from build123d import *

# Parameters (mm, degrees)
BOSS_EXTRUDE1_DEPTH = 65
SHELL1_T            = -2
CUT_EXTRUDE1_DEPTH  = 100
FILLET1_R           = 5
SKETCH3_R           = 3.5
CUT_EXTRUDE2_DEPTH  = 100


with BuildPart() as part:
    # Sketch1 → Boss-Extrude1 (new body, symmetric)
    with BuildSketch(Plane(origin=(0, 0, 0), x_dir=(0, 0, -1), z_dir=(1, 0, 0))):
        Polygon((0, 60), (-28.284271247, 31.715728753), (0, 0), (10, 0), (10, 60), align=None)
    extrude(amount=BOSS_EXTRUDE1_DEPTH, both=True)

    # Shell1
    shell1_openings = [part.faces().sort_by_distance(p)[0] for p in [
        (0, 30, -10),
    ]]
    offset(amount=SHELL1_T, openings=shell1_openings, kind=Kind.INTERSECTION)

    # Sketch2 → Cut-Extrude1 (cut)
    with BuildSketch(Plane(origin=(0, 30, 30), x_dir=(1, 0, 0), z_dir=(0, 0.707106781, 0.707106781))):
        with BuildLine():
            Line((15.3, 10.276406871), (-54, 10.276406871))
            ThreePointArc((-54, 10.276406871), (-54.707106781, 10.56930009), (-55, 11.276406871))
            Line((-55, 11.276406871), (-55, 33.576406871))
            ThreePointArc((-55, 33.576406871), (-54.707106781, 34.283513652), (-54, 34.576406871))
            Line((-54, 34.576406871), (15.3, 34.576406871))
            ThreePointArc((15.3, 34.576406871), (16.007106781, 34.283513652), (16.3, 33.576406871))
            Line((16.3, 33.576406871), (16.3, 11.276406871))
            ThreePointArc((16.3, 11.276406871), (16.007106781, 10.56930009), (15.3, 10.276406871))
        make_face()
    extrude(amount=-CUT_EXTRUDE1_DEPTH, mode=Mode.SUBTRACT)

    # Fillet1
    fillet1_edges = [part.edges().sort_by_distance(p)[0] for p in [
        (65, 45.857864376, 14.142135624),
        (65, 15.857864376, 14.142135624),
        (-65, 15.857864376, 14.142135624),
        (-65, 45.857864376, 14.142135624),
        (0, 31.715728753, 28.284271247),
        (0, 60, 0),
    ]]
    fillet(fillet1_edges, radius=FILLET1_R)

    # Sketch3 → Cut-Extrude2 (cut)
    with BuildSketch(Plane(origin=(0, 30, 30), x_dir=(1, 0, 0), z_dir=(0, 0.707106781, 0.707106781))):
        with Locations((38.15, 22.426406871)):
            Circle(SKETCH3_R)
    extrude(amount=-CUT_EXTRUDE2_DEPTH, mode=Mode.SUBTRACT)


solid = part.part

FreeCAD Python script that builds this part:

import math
import FreeCAD as App
import Part
import Sketcher
from FreeCAD import Vector
Q = App.Units.Quantity


def edges_at(feature, points):
    """Names of the edges that pass closest to the given points."""
    edges = feature.Shape.Edges
    near = lambda p: min(range(len(edges)), key=lambda i: edges[i].distToShape(Part.Vertex(*p))[0])
    return sorted({f"Edge{near(p) + 1}" for p in points})


def faces_at(feature, points):
    """Names of the faces that lie closest to the given points."""
    faces = feature.Shape.Faces
    near = lambda p: min(range(len(faces)), key=lambda i: faces[i].distToShape(Part.Vertex(*p))[0])
    return sorted({f"Face{near(p) + 1}" for p in points})


def add_polygon(sketch, points):
    """Adds a closed chain of lines whose ends are joined by coincident constraints."""
    first, n = sketch.GeometryCount, len(points)
    for a, b in zip(points, points[1:] + points[:1]):
        sketch.addGeometry(Part.LineSegment(App.Vector(*a, 0), App.Vector(*b, 0)), False)
    for i in range(n):
        sketch.addConstraint(Sketcher.Constraint("Coincident", first + i, 2, first + (i + 1) % n, 1))

doc = App.newDocument("Part")
params = doc.addObject("Spreadsheet::Sheet", "Params")
for row, (alias, value) in enumerate([
    ("sketch1_width", "60 mm"),
    ("sketch1_height", "10 mm"),
    ("sketch1_length", "40 mm"),
    ("pad1_length", "130 mm"),
    ("thickness_wall", "2 mm"),
    ("sketch2_radius", "1 mm"),
    ("sketch2_width", "69.3 mm"),
    ("sketch2_height", "22.3 mm"),
    ("pocket1_length", "100 mm"),
    ("fillet_radius", "5 mm"),
    ("sketch3_diameter", "7 mm"),
    ("pocket2_length", "100 mm"),
], start=1):
    params.set(f"A{row}", alias)
    params.set(f"B{row}", "=" + value)
    params.setAlias(f"B{row}", alias)

body = doc.addObject("PartDesign::Body", "Body")

sketch1 = body.newObject("Sketcher::SketchObject", "Sketch")
sketch1.AttachmentSupport = (doc.getObject("YZ_Plane"), [""])
sketch1.MapMode = "FlatFace"
add_polygon(sketch1, [(60, 0), (32, 28), (0, 0), (0, -10), (60, -10)])
sketch1.addConstraint(Sketcher.Constraint("Vertical", 2))
sketch1.addConstraint(Sketcher.Constraint("Horizontal", 3))
sketch1.addConstraint(Sketcher.Constraint("Vertical", 4))
sketch1.addConstraint(Sketcher.Constraint("Coincident", 1, 2, -1, 1))
sketch1.addConstraint(Sketcher.Constraint("PointOnObject", 4, 2, -1))
sketch1.addConstraint(Sketcher.Constraint("DistanceX", 3, 1, 3, 2, 60.0))
sketch1.addConstraint(Sketcher.Constraint("DistanceY", 2, 2, 2, 1, 10.0))
sketch1.addConstraint(Sketcher.Constraint("Angle", 0, Q("135 deg")))
sketch1.addConstraint(Sketcher.Constraint("Distance", 0, 40.0))
sketch1.setExpression("Constraints[10]", "Params.sketch1_width")
sketch1.setExpression("Constraints[11]", "Params.sketch1_height")
sketch1.setExpression("Constraints[13]", "Params.sketch1_length")
pad1 = body.newObject("PartDesign::Pad", "Pad")
pad1.Profile = sketch1
pad1.setExpression("Length", "Params.pad1_length")
pad1.Midplane = True
doc.recompute()

thickness = body.newObject("PartDesign::Thickness", "Thickness")
thickness.Base = (pad1, faces_at(pad1, [(0, 30, -10)]))
thickness.setExpression("Value", "Params.thickness_wall")
thickness.Reversed = True
thickness.Join = "Intersection"

sketch2 = body.newObject("Sketcher::SketchObject", "Sketch001")
sketch2.Placement = App.Placement(Vector(0, 30, 30), App.Rotation(Vector(1, 0, 0), Vector(0, 0.707106781, -0.707106781), Vector(0, 0.707106781, 0.707106781), "ZXY"))
sketch2.addGeometry(Part.LineSegment(Vector(-54, 10.3, 0), Vector(15.3, 10.3, 0)), False)
sketch2.addGeometry(Part.ArcOfCircle(Part.Circle(Vector(15.3, 11.3, 0), Vector(0, 0, 1), 1), math.radians(-90), math.radians(0)), False)
sketch2.addGeometry(Part.LineSegment(Vector(16.3, 11.3, 0), Vector(16.3, 33.6, 0)), False)
sketch2.addGeometry(Part.ArcOfCircle(Part.Circle(Vector(15.3, 33.6, 0), Vector(0, 0, 1), 1), math.radians(0), math.radians(90)), False)
sketch2.addGeometry(Part.LineSegment(Vector(15.3, 34.6, 0), Vector(-54, 34.6, 0)), False)
sketch2.addGeometry(Part.ArcOfCircle(Part.Circle(Vector(-54, 33.6, 0), Vector(0, 0, 1), 1), math.radians(90), math.radians(180)), False)
sketch2.addGeometry(Part.LineSegment(Vector(-55, 33.6, 0), Vector(-55, 11.3, 0)), False)
sketch2.addGeometry(Part.ArcOfCircle(Part.Circle(Vector(-54, 11.3, 0), Vector(0, 0, 1), 1), math.radians(-180), math.radians(-90)), False)
sketch2.addConstraint(Sketcher.Constraint("Tangent", 0, 2, 1, 1))
sketch2.addConstraint(Sketcher.Constraint("Tangent", 1, 2, 2, 1))
sketch2.addConstraint(Sketcher.Constraint("Tangent", 2, 2, 3, 1))
sketch2.addConstraint(Sketcher.Constraint("Tangent", 3, 2, 4, 1))
sketch2.addConstraint(Sketcher.Constraint("Tangent", 4, 2, 5, 1))
sketch2.addConstraint(Sketcher.Constraint("Tangent", 5, 2, 6, 1))
sketch2.addConstraint(Sketcher.Constraint("Tangent", 6, 2, 7, 1))
sketch2.addConstraint(Sketcher.Constraint("Tangent", 7, 2, 0, 1))
sketch2.addConstraint(Sketcher.Constraint("Horizontal", 0))
sketch2.addConstraint(Sketcher.Constraint("Vertical", 2))
sketch2.addConstraint(Sketcher.Constraint("Horizontal", 4))
sketch2.addConstraint(Sketcher.Constraint("Vertical", 6))
sketch2.addConstraint(Sketcher.Constraint("Equal", 1, 3))
sketch2.addConstraint(Sketcher.Constraint("Equal", 3, 5))
sketch2.addConstraint(Sketcher.Constraint("Equal", 5, 7))
sketch2.addConstraint(Sketcher.Constraint("Radius", 1, 1.0))
sketch2.addConstraint(Sketcher.Constraint("DistanceX", 0, 1, 0, 2, 69.3))
sketch2.addConstraint(Sketcher.Constraint("DistanceY", 2, 1, 2, 2, 22.3))
sketch2.addConstraint(Sketcher.Constraint("DistanceX", 5, 3, -1, 1, 54.0))
sketch2.addConstraint(Sketcher.Constraint("DistanceY", -1, 1, 1, 3, 11.276407))
sketch2.setExpression("Constraints[15]", "Params.sketch2_radius")
sketch2.setExpression("Constraints[16]", "Params.sketch2_width")
sketch2.setExpression("Constraints[17]", "Params.sketch2_height")
pocket1 = body.newObject("PartDesign::Pocket", "Pocket")
pocket1.Profile = sketch2
pocket1.setExpression("Length", "Params.pocket1_length")
doc.recompute()

fillet = body.newObject("PartDesign::Fillet", "Fillet")
fillet.Base = (pocket1, edges_at(pocket1, [
    (65, 45.858, 14.142),
    (65, 15.858, 14.142),
    (-65, 15.858, 14.142),
    (-65, 45.858, 14.142),
    (0, 31.716, 28.284),
    (0, 60, 0),
]))
fillet.setExpression("Radius", "Params.fillet_radius")

sketch3 = body.newObject("Sketcher::SketchObject", "Sketch002")
sketch3.Placement = App.Placement(Vector(0, 30, 30), App.Rotation(Vector(1, 0, 0), Vector(0, 0.707106781, -0.707106781), Vector(0, 0.707106781, 0.707106781), "ZXY"))
sketch3.addGeometry(Part.Circle(Vector(38.1, 22.4, 0), Vector(0, 0, 1), 3.5), False)
sketch3.addConstraint(Sketcher.Constraint("Diameter", 0, 7.0))
sketch3.addConstraint(Sketcher.Constraint("DistanceX", -1, 1, 0, 3, 38.15))
sketch3.addConstraint(Sketcher.Constraint("DistanceY", -1, 1, 0, 3, 22.426407))
sketch3.setExpression("Constraints[0]", "Params.sketch3_diameter")
pocket2 = body.newObject("PartDesign::Pocket", "Pocket001")
pocket2.Profile = sketch3
pocket2.setExpression("Length", "Params.pocket2_length")

doc.recompute()
